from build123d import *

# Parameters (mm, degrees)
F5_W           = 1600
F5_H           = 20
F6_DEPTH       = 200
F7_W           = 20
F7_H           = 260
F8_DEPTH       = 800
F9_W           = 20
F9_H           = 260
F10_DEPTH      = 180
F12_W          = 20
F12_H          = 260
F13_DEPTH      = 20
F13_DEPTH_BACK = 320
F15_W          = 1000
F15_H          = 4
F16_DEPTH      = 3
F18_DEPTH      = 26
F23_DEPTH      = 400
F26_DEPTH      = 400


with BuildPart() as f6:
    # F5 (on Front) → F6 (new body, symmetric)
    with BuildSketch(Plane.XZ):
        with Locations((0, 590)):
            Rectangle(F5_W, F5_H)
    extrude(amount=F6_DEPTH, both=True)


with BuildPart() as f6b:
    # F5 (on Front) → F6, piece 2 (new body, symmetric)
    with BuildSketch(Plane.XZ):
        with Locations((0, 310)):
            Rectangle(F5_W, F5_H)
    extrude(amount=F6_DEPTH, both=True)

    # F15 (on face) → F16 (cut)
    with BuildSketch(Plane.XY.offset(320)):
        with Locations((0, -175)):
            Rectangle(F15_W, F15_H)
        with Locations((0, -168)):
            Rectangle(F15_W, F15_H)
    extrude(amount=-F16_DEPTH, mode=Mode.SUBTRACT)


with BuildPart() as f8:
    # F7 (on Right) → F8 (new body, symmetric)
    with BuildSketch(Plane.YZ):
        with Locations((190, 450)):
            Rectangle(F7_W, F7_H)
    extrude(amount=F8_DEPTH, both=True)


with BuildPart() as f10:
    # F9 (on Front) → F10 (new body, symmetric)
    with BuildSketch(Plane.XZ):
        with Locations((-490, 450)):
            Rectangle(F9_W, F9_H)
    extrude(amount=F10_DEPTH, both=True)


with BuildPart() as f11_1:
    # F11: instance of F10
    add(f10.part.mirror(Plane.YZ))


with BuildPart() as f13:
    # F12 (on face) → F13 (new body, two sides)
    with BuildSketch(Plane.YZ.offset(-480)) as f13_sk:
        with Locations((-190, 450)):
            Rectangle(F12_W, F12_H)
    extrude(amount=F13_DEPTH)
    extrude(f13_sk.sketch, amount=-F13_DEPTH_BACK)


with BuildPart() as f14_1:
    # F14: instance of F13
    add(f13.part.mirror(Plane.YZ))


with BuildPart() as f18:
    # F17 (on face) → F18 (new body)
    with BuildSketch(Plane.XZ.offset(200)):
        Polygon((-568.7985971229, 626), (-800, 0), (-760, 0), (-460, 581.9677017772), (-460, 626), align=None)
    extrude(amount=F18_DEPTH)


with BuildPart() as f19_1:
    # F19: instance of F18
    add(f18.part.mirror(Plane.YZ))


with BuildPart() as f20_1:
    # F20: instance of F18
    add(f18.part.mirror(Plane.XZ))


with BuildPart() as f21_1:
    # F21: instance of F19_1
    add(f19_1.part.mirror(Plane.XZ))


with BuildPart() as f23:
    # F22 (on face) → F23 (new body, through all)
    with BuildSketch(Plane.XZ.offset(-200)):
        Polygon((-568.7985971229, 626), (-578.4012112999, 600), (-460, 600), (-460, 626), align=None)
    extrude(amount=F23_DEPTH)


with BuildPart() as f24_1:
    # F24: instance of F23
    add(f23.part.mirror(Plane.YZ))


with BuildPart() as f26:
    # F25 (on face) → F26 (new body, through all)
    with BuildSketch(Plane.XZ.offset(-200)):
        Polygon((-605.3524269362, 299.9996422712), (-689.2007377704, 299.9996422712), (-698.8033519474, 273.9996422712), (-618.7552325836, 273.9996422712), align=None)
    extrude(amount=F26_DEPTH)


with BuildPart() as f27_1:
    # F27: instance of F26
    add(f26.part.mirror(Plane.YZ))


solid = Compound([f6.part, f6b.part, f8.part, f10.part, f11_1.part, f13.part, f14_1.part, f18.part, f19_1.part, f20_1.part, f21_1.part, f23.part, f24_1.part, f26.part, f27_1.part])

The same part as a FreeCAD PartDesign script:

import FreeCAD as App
import Part
import Sketcher

V = App.Vector

doc = App.newDocument("Part")
body = doc.addObject("PartDesign::Body", "Body")

# Sketch on XZ plane
sketch1 = body.newObject("Sketcher::SketchObject", "Sketch")
sketch1.AttachmentSupport = (doc.getObject("XZ_Plane"), [""])
sketch1.MapMode = "FlatFace"
sketch1.addGeometry([
    Part.LineSegment(V(-800, 600, 0), V(-800, 580, 0)),
    Part.LineSegment(V(-800, 580, 0), V(800, 580, 0)),
    Part.LineSegment(V(800, 580, 0), V(800, 600, 0)),
    Part.LineSegment(V(800, 600, 0), V(-800, 600, 0)),
], False)
sketch1.addConstraint([
    Sketcher.Constraint("Coincident", 0, 2, 1, 1),
    Sketcher.Constraint("Coincident", 1, 2, 2, 1),
    Sketcher.Constraint("Coincident", 2, 2, 3, 1),
    Sketcher.Constraint("Coincident", 3, 2, 0, 1),
    Sketcher.Constraint("Vertical", 0),
    Sketcher.Constraint("Horizontal", 1),
    Sketcher.Constraint("Vertical", 2),
    Sketcher.Constraint("Horizontal", 3),
    Sketcher.Constraint("DistanceX", 1, 1, 1, 2, 1600.0),
    Sketcher.Constraint("DistanceY", 0, 2, 0, 1, 20.0),
    Sketcher.Constraint("DistanceX", 0, 2, -1, 1, 800.0),
    Sketcher.Constraint("DistanceY", -1, 1, 0, 2, 580.0),
])
pad1 = body.newObject("PartDesign::Pad", "Pad")
pad1.Profile = sketch1
pad1.Length = 400
pad1.Midplane = True
body2 = doc.addObject("PartDesign::Body", "Body001")

# Sketch on XZ plane
sketch2 = body2.newObject("Sketcher::SketchObject", "Sketch001")
sketch2.AttachmentSupport = (doc.getObject("XZ_Plane001"), [""])
sketch2.MapMode = "FlatFace"
sketch2.addGeometry([
    Part.LineSegment(V(-800, 320, 0), V(-800, 300, 0)),
    Part.LineSegment(V(-800, 300, 0), V(800, 300, 0)),
    Part.LineSegment(V(800, 300, 0), V(800, 320, 0)),
    Part.LineSegment(V(800, 320, 0), V(-800, 320, 0)),
], False)
sketch2.addConstraint([
    Sketcher.Constraint("Coincident", 0, 2, 1, 1),
    Sketcher.Constraint("Coincident", 1, 2, 2, 1),
    Sketcher.Constraint("Coincident", 2, 2, 3, 1),
    Sketcher.Constraint("Coincident", 3, 2, 0, 1),
    Sketcher.Constraint("Vertical", 0),
    Sketcher.Constraint("Horizontal", 1),
    Sketcher.Constraint("Vertical", 2),
    Sketcher.Constraint("Horizontal", 3),
    Sketcher.Constraint("DistanceX", 1, 1, 1, 2, 1600.0),
    Sketcher.Constraint("DistanceY", 0, 2, 0, 1, 20.0),
    Sketcher.Constraint("DistanceX", 0, 2, -1, 1, 800.0),
    Sketcher.Constraint("DistanceY", -1, 1, 0, 2, 300.0),
])
pad2 = body2.newObject("PartDesign::Pad", "Pad001")
pad2.Profile = sketch2
pad2.Length = 400
pad2.Midplane = True

# Sketch on XY plane
sketch3 = body2.newObject("Sketcher::SketchObject", "Sketch002")
sketch3.AttachmentSupport = (doc.getObject("XY_Plane001"), [""])
sketch3.MapMode = "FlatFace"
sketch3.AttachmentOffset = App.Placement(V(0, 0, 320), App.Rotation())
sketch3.addGeometry([
    Part.LineSegment(V(-500, -173, 0), V(-500, -177, 0)),  # 0
    Part.LineSegment(V(-500, -177, 0), V(500, -177, 0)),  # 1
    Part.LineSegment(V(500, -177, 0), V(500, -173, 0)),  # 2
    Part.LineSegment(V(500, -173, 0), V(-500, -173, 0)),  # 3
    Part.LineSegment(V(-500, -166, 0), V(-500, -170, 0)),  # 4
    Part.LineSegment(V(-500, -170, 0), V(500, -170, 0)),  # 5
    Part.LineSegment(V(500, -170, 0), V(500, -166, 0)),  # 6
    Part.LineSegment(V(500, -166, 0), V(-500, -166, 0)),  # 7
], False)
sketch3.addConstraint([
    Sketcher.Constraint("Coincident", 0, 2, 1, 1),
    Sketcher.Constraint("Coincident", 1, 2, 2, 1),
    Sketcher.Constraint("Coincident", 2, 2, 3, 1),
    Sketcher.Constraint("Coincident", 3, 2, 0, 1),
    Sketcher.Constraint("Coincident", 4, 2, 5, 1),
    Sketcher.Constraint("Coincident", 5, 2, 6, 1),
    Sketcher.Constraint("Coincident", 6, 2, 7, 1),
    Sketcher.Constraint("Coincident", 7, 2, 4, 1),
    Sketcher.Constraint("Vertical", 0),
    Sketcher.Constraint("Horizontal", 1),
    Sketcher.Constraint("Vertical", 2),
    Sketcher.Constraint("Horizontal", 3),
    Sketcher.Constraint("Vertical", 4),
    Sketcher.Constraint("Horizontal", 5),
    Sketcher.Constraint("Vertical", 6),
    Sketcher.Constraint("Horizontal", 7),
    Sketcher.Constraint("Vertical", 3, 2, 4, 2),
    Sketcher.Constraint("Vertical", 2, 2, 5, 2),
    Sketcher.Constraint("Equal", 2, 4),
    Sketcher.Constraint("DistanceX", 1, 1, 1, 2, 1000.0),
    Sketcher.Constraint("DistanceY", 0, 2, 0, 1, 4.0),
    Sketcher.Constraint("DistanceX", 0, 2, -1, 1, 500.0),
    Sketcher.Constraint("DistanceY", 0, 2, -1, 1, 177.0),
    Sketcher.Constraint("DistanceY", 4, 2, -1, 1, 170.0),
])
pocket1 = body2.newObject("PartDesign::Pocket", "Pocket")
pocket1.Profile = sketch3
pocket1.Length = 3
body3 = doc.addObject("PartDesign::Body", "Body002")

# Sketch on YZ plane
sketch4 = body3.newObject("Sketcher::SketchObject", "Sketch003")
sketch4.AttachmentSupport = (doc.getObject("YZ_Plane002"), [""])
sketch4.MapMode = "FlatFace"
sketch4.addGeometry([
    Part.LineSegment(V(180, 580, 0), V(180, 320, 0)),
    Part.LineSegment(V(180, 320, 0), V(200, 320, 0)),
    Part.LineSegment(V(200, 320, 0), V(200, 580, 0)),
    Part.LineSegment(V(200, 580, 0), V(180, 580, 0)),
], False)
sketch4.addConstraint([
    Sketcher.Constraint("Coincident", 0, 2, 1, 1),
    Sketcher.Constraint("Coincident", 1, 2, 2, 1),
    Sketcher.Constraint("Coincident", 2, 2, 3, 1),
    Sketcher.Constraint("Coincident", 3, 2, 0, 1),
    Sketcher.Constraint("Vertical", 0),
    Sketcher.Constraint("Horizontal", 1),
    Sketcher.Constraint("Vertical", 2),
    Sketcher.Constraint("Horizontal", 3),
    Sketcher.Constraint("DistanceX", 1, 1, 1, 2, 20.0),
    Sketcher.Constraint("DistanceY", 0, 2, 0, 1, 260.0),
    Sketcher.Constraint("DistanceX", -1, 1, 0, 2, 180.0),
    Sketcher.Constraint("DistanceY", -1, 1, 0, 2, 320.0),
])
pad3 = body3.newObject("PartDesign::Pad", "Pad002")
pad3.Profile = sketch4
pad3.Length = 1600
pad3.Midplane = True
body4 = doc.addObject("PartDesign::Body", "Body003")

# Sketch on XZ plane
sketch5 = body4.newObject("Sketcher::SketchObject", "Sketch004")
sketch5.AttachmentSupport = (doc.getObject("XZ_Plane003"), [""])
sketch5.MapMode = "FlatFace"
sketch5.addGeometry([
    Part.LineSegment(V(-500, 580, 0), V(-500, 320, 0)),
    Part.LineSegment(V(-500, 320, 0), V(-480, 320, 0)),
    Part.LineSegment(V(-480, 320, 0), V(-480, 580, 0)),
    Part.LineSegment(V(-480, 580, 0), V(-500, 580, 0)),
], False)
sketch5.addConstraint([
    Sketcher.Constraint("Coincident", 0, 2, 1, 1),
    Sketcher.Constraint("Coincident", 1, 2, 2, 1),
    Sketcher.Constraint("Coincident", 2, 2, 3, 1),
    Sketcher.Constraint("Coincident", 3, 2, 0, 1),
    Sketcher.Constraint("Vertical", 0),
    Sketcher.Constraint("Horizontal", 1),
    Sketcher.Constraint("Vertical", 2),
    Sketcher.Constraint("Horizontal", 3),
    Sketcher.Constraint("DistanceX", 1, 1, 1, 2, 20.0),
    Sketcher.Constraint("DistanceY", 0, 2, 0, 1, 260.0),
    Sketcher.Constraint("DistanceX", 0, 2, -1, 1, 500.0),
    Sketcher.Constraint("DistanceY", -1, 1, 0, 2, 320.0),
])
pad4 = body4.newObject("PartDesign::Pad", "Pad003")
pad4.Profile = sketch5
pad4.Length = 360
pad4.Midplane = True
body5 = doc.addObject("PartDesign::Body", "Body004")
doc.recompute()

mirroring = doc.addObject("Part::Mirroring", "Mirroring")
mirroring.Source = body4
mirroring.Base = V(0, 0, 0)
mirroring.Normal = V(1, 0, 0)
body5.BaseFeature = mirroring
doc.recompute()
body6 = doc.addObject("PartDesign::Body", "Body005")

# Sketch on YZ plane
sketch6 = body6.newObject("Sketcher::SketchObject", "Sketch005")
sketch6.AttachmentSupport = (doc.getObject("YZ_Plane005"), [""])
sketch6.MapMode = "FlatFace"
sketch6.AttachmentOffset = App.Placement(V(0, 0, -480), App.Rotation())
sketch6.addGeometry([
    Part.LineSegment(V(-200, 580, 0), V(-200, 320, 0)),
    Part.LineSegment(V(-200, 320, 0), V(-180, 320, 0)),
    Part.LineSegment(V(-180, 320, 0), V(-180, 580, 0)),
    Part.LineSegment(V(-180, 580, 0), V(-200, 580, 0)),
], False)
sketch6.addConstraint([
    Sketcher.Constraint("Coincident", 0, 2, 1, 1),
    Sketcher.Constraint("Coincident", 1, 2, 2, 1),
    Sketcher.Constraint("Coincident", 2, 2, 3, 1),
    Sketcher.Constraint("Coincident", 3, 2, 0, 1),
    Sketcher.Constraint("Vertical", 0),
    Sketcher.Constraint("Horizontal", 1),
    Sketcher.Constraint("Vertical", 2),
    Sketcher.Constraint("Horizontal", 3),
    Sketcher.Constraint("DistanceX", 1, 1, 1, 2, 20.0),
    Sketcher.Constraint("DistanceY", 0, 2, 0, 1, 260.0),
    Sketcher.Constraint("DistanceX", 0, 2, -1, 1, 200.0),
    Sketcher.Constraint("DistanceY", -1, 1, 0, 2, 320.0),
])
pad5 = body6.newObject("PartDesign::Pad", "Pad004")
pad5.Profile = sketch6
pad5.Type = "TwoLengths"
pad5.Length = 20
pad5.Length2 = 320
body7 = doc.addObject("PartDesign::Body", "Body006")
doc.recompute()

mirroring2 = doc.addObject("Part::Mirroring", "Mirroring001")
mirroring2.Source = body6
mirroring2.Base = V(0, 0, 0)
mirroring2.Normal = V(1, 0, 0)
body7.BaseFeature = mirroring2
doc.recompute()
body8 = doc.addObject("PartDesign::Body", "Body007")

# Sketch on XZ plane
sketch7 = body8.newObject("Sketcher::SketchObject", "Sketch006")
sketch7.AttachmentSupport = (doc.getObject("XZ_Plane007"), [""])
sketch7.MapMode = "FlatFace"
sketch7.AttachmentOffset = App.Placement(V(0, 0, 200), App.Rotation())
sketch7.addGeometry([
    Part.LineSegment(V(-568.798597, 626, 0), V(-800, 0, 0)),  # 0
    Part.LineSegment(V(-800, 0, 0), V(-760, 0, 0)),  # 1
    Part.LineSegment(V(-760, 0, 0), V(-460, 581.967702, 0)),  # 2
    Part.LineSegment(V(-460, 581.967702, 0), V(-460, 626, 0)),  # 3
    Part.LineSegment(V(-460, 626, 0), V(-568.798597, 626, 0)),  # 4
], False)
sketch7.addConstraint([
    Sketcher.Constraint("Coincident", 0, 2, 1, 1),
    Sketcher.Constraint("Coincident", 1, 2, 2, 1),
    Sketcher.Constraint("Coincident", 2, 2, 3, 1),
    Sketcher.Constraint("Coincident", 3, 2, 4, 1),
    Sketcher.Constraint("Coincident", 4, 2, 0, 1),
    Sketcher.Constraint("Horizontal", 1),
    Sketcher.Constraint("Vertical", 3),
    Sketcher.Constraint("Horizontal", 4),
    Sketcher.Constraint("PointOnObject", 0, 2, -1),
    Sketcher.Constraint("DistanceX", 1, 1, 1, 2, 40.0),
    Sketcher.Constraint("DistanceX", 0, 2, -1, 1, 800.0),
    Sketcher.Constraint("DistanceX", 2, 2, -1, 1, 460.0),
    Sketcher.Constraint("DistanceY", -1, 1, 3, 2, 626.0),
    Sketcher.Constraint("DistanceY", 3, 1, 3, 2, 44.032298),
    Sketcher.Constraint("Distance", 0, 667.330569),
])
pad6 = body8.newObject("PartDesign::Pad", "Pad005")
pad6.Profile = sketch7
pad6.Length = 26
body9 = doc.addObject("PartDesign::Body", "Body008")
doc.recompute()

mirroring3 = doc.addObject("Part::Mirroring", "Mirroring002")
mirroring3.Source = body8
mirroring3.Base = V(0, 0, 0)
mirroring3.Normal = V(1, 0, 0)
body9.BaseFeature = mirroring3
doc.recompute()
body10 = doc.addObject("PartDesign::Body", "Body009")
doc.recompute()

mirroring4 = doc.addObject("Part::Mirroring", "Mirroring003")
mirroring4.Source = body8
mirroring4.Base = V(0, 0, 0)
mirroring4.Normal = V(0, -1, 0)
body10.BaseFeature = mirroring4
doc.recompute()
body11 = doc.addObject("PartDesign::Body", "Body010")
doc.recompute()

mirroring5 = doc.addObject("Part::Mirroring", "Mirroring004")
mirroring5.Source = body9
mirroring5.Base = V(0, 0, 0)
mirroring5.Normal = V(0, -1, 0)
body11.BaseFeature = mirroring5
doc.recompute()
body12 = doc.addObject("PartDesign::Body", "Body011")

# Sketch on XZ plane
sketch8 = body12.newObject("Sketcher::SketchObject", "Sketch007")
sketch8.AttachmentSupport = (doc.getObject("XZ_Plane011"), [""])
sketch8.MapMode = "FlatFace"
sketch8.AttachmentOffset = App.Placement(V(0, 0, -200), App.Rotation())
sketch8.addGeometry([
    Part.LineSegment(V(-568.798597, 626, 0), V(-578.401211, 600, 0)),
    Part.LineSegment(V(-578.401211, 600, 0), V(-460, 600, 0)),
    Part.LineSegment(V(-460, 600, 0), V(-460, 626, 0)),
    Part.LineSegment(V(-460, 626, 0), V(-568.798597, 626, 0)),
], False)
sketch8.addConstraint([
    Sketcher.Constraint("Coincident", 0, 2, 1, 1),
    Sketcher.Constraint("Coincident", 1, 2, 2, 1),
    Sketcher.Constraint("Coincident", 2, 2, 3, 1),
    Sketcher.Constraint("Coincident", 3, 2, 0, 1),
    Sketcher.Constraint("Horizontal", 1),
    Sketcher.Constraint("Vertical", 2),
    Sketcher.Constraint("Horizontal", 3),
    Sketcher.Constraint("DistanceY", 2, 1, 2, 2, 26.0),
    Sketcher.Constraint("DistanceY", -1, 1, 0, 2, 600.0),
    Sketcher.Constraint("DistanceX", 1, 2, -1, 1, 460.0),
    Sketcher.Constraint("DistanceX", 1, 1, 1, 2, 118.401211),
    Sketcher.Constraint("DistanceX", 3, 2, 3, 1, 108.798597),
])
pad7 = body12.newObject("PartDesign::Pad", "Pad006")
pad7.Profile = sketch8
pad7.Length = 400
body13 = doc.addObject("PartDesign::Body", "Body012")
doc.recompute()

mirroring6 = doc.addObject("Part::Mirroring", "Mirroring005")
mirroring6.Source = body12
mirroring6.Base = V(0, 0, 0)
mirroring6.Normal = V(1, 0, 0)
body13.BaseFeature = mirroring6
doc.recompute()
body14 = doc.addObject("PartDesign::Body", "Body013")

# Sketch on XZ plane
sketch9 = body14.newObject("Sketcher::SketchObject", "Sketch008")
sketch9.AttachmentSupport = (doc.getObject("XZ_Plane013"), [""])
sketch9.MapMode = "FlatFace"
sketch9.AttachmentOffset = App.Placement(V(0, 0, -200), App.Rotation())
sketch9.addGeometry([
    Part.LineSegment(V(-605.352427, 299.999642, 0), V(-689.200738, 299.999642, 0)),
    Part.LineSegment(V(-689.200738, 299.999642, 0), V(-698.803352, 273.999642, 0)),
    Part.LineSegment(V(-698.803352, 273.999642, 0), V(-618.755233, 273.999642, 0)),
    Part.LineSegment(V(-618.755233, 273.999642, 0), V(-605.352427, 299.999642, 0)),
], False)
sketch9.addConstraint([
    Sketcher.Constraint("Coincident", 0, 2, 1, 1),
    Sketcher.Constraint("Coincident", 1, 2, 2, 1),
    Sketcher.Constraint("Coincident", 2, 2, 3, 1),
    Sketcher.Constraint("Coincident", 3, 2, 0, 1),
    Sketcher.Constraint("Horizontal", 0),
    Sketcher.Constraint("Horizontal", 2),
    Sketcher.Constraint("DistanceY", 1, 2, 0, 2, 26.0),
    Sketcher.Constraint("DistanceX", 0, 2, 0, 1, 83.848311),
    Sketcher.Constraint("DistanceX", 2, 1, 2, 2, 80.048119),
    Sketcher.Constraint("DistanceX", 1, 2, -1, 1, 698.803352),
    Sketcher.Constraint("Distance", 1, 27.716605),
    Sketcher.Constraint("DistanceY", -1, 1, 0, 2, 299.999642),
])
pad8 = body14.newObject("PartDesign::Pad", "Pad007")
pad8.Profile = sketch9
pad8.Length = 400
body15 = doc.addObject("PartDesign::Body", "Body014")
doc.recompute()

mirroring7 = doc.addObject("Part::Mirroring", "Mirroring006")
mirroring7.Source = body14
mirroring7.Base = V(0, 0, 0)
mirroring7.Normal = V(1, 0, 0)
body15.BaseFeature = mirroring7
doc.recompute()
mirroring.Visibility = False
mirroring2.Visibility = False
mirroring3.Visibility = False
mirroring4.Visibility = False
mirroring5.Visibility = False
mirroring6.Visibility = False
mirroring7.Visibility = False

doc.recompute()
